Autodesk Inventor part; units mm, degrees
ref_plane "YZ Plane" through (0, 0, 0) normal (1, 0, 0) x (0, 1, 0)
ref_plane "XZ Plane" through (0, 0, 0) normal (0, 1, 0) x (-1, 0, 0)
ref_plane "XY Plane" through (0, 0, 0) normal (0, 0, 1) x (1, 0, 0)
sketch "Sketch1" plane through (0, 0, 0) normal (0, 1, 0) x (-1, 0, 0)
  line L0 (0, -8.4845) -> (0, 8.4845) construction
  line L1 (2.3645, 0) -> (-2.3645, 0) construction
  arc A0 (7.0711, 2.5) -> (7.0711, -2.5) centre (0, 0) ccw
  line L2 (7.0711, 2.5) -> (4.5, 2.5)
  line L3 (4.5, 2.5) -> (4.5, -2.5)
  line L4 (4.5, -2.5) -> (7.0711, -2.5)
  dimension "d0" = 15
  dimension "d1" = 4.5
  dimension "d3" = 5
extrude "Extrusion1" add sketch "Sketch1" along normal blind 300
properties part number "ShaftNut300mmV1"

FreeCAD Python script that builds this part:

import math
import FreeCAD as App
import Part
import Sketcher
Q = App.Units.Quantity

doc = App.newDocument("Part")
params = doc.addObject("Spreadsheet::Sheet", "Params")
for row, (alias, value) in enumerate([
    ("sketch1_radius", "7.5 mm"),
    ("sketch1_height", "5 mm"),
    ("pad1_length", "300 mm"),
], start=1):
    params.set(f"A{row}", alias)
    params.set(f"B{row}", "=" + value)
    params.setAlias(f"B{row}", alias)

body = doc.addObject("PartDesign::Body", "Body")

# Sketch on XZ plane
sketch1 = body.newObject("Sketcher::SketchObject", "Sketch")
sketch1.AttachmentSupport = (doc.getObject("XZ_Plane"), [""])
sketch1.MapMode = "FlatFace"
sketch1.addGeometry(Part.LineSegment(App.Vector(-4.5, 2.5, 0), App.Vector(-7.1, 2.5, 0)), False)
sketch1.addGeometry(Part.ArcOfCircle(Part.Circle(App.Vector(0, 0, 0), App.Vector(0, 0, 1), 7.5), math.radians(-161), math.radians(161)), False)
sketch1.addGeometry(Part.LineSegment(App.Vector(-7.1, -2.5, 0), App.Vector(-4.5, -2.5, 0)), False)
sketch1.addGeometry(Part.LineSegment(App.Vector(-4.5, -2.5, 0), App.Vector(-4.5, 2.5, 0)), False)
sketch1.addConstraint(Sketcher.Constraint("Coincident", 0, 2, 1, 2))
sketch1.addConstraint(Sketcher.Constraint("Coincident", 1, 1, 2, 1))
sketch1.addConstraint(Sketcher.Constraint("Coincident", 2, 2, 3, 1))
sketch1.addConstraint(Sketcher.Constraint("Coincident", 3, 2, 0, 1))
sketch1.addConstraint(Sketcher.Constraint("Horizontal", 0))
sketch1.addConstraint(Sketcher.Constraint("Horizontal", 2))
sketch1.addConstraint(Sketcher.Constraint("Vertical", 3))
sketch1.addConstraint(Sketcher.Constraint("Coincident", 1, 3, -1, 1))
sketch1.addConstraint(Sketcher.Constraint("Vertical", 0, 2, 1, 1))
sketch1.addConstraint(Sketcher.Constraint("Radius", 1, Q("7.5 mm")))
sketch1.addConstraint(Sketcher.Constraint("DistanceY", 3, 1, 3, 2, Q("5 mm")))
sketch1.addConstraint(Sketcher.Constraint("DistanceX", 2, 2, -1, 1, Q("4.5 mm")))
sketch1.setExpression("Constraints[9]", "Params.sketch1_radius")
sketch1.setExpression("Constraints[10]", "Params.sketch1_height")
pad1 = body.newObject("PartDesign::Pad", "Pad")
pad1.Profile = sketch1
pad1.setExpression("Length", "Params.pad1_length")
pad1.Reversed = True

doc.recompute()
